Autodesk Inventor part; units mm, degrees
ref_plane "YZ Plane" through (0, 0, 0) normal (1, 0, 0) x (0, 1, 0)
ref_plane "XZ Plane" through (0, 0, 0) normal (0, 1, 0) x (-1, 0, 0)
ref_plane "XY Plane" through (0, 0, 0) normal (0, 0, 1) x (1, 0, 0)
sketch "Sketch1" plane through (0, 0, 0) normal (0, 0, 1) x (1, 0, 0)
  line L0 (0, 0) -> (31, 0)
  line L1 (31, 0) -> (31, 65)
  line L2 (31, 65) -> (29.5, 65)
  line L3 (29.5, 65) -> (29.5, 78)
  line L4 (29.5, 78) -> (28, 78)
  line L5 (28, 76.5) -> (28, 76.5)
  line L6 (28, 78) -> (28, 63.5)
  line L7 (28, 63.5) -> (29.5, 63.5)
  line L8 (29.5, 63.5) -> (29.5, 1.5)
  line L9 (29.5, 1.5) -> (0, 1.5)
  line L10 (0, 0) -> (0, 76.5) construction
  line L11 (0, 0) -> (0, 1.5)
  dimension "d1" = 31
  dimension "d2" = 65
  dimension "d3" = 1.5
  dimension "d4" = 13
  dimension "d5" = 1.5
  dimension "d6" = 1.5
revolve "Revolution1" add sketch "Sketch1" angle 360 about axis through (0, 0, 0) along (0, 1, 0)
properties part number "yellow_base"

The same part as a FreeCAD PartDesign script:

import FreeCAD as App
import Part
import Sketcher
from FreeCAD import Vector

doc = App.newDocument("Part")
body = doc.addObject("PartDesign::Body", "Body")

# Sketch on XY plane
sketch1 = body.newObject("Sketcher::SketchObject", "Sketch")
sketch1.AttachmentSupport = (doc.getObject("XY_Plane"), [""])
sketch1.MapMode = "FlatFace"
sketch1.addGeometry(Part.LineSegment(Vector(0, 1.5, 0), Vector(0, 0, 0)), False)
sketch1.addGeometry(Part.LineSegment(Vector(0, 0, 0), Vector(31, 0, 0)), False)
sketch1.addGeometry(Part.LineSegment(Vector(31, 0, 0), Vector(31, 65, 0)), False)
sketch1.addGeometry(Part.LineSegment(Vector(31, 65, 0), Vector(29.5, 65, 0)), False)
sketch1.addGeometry(Part.LineSegment(Vector(29.5, 65, 0), Vector(29.5, 78, 0)), False)
sketch1.addGeometry(Part.LineSegment(Vector(29.5, 78, 0), Vector(28, 78, 0)), False)
sketch1.addGeometry(Part.LineSegment(Vector(28, 78, 0), Vector(28, 63.5, 0)), False)
sketch1.addGeometry(Part.LineSegment(Vector(28, 63.5, 0), Vector(29.5, 63.5, 0)), False)
sketch1.addGeometry(Part.LineSegment(Vector(29.5, 63.5, 0), Vector(29.5, 1.5, 0)), False)
sketch1.addGeometry(Part.LineSegment(Vector(29.5, 1.5, 0), Vector(0, 1.5, 0)), False)
sketch1.addConstraint(Sketcher.Constraint("Coincident", 0, 2, 1, 1))
sketch1.addConstraint(Sketcher.Constraint("Coincident", 1, 2, 2, 1))
sketch1.addConstraint(Sketcher.Constraint("Coincident", 2, 2, 3, 1))
sketch1.addConstraint(Sketcher.Constraint("Coincident", 3, 2, 4, 1))
sketch1.addConstraint(Sketcher.Constraint("Coincident", 4, 2, 5, 1))
sketch1.addConstraint(Sketcher.Constraint("Coincident", 5, 2, 6, 1))
sketch1.addConstraint(Sketcher.Constraint("Coincident", 6, 2, 7, 1))
sketch1.addConstraint(Sketcher.Constraint("Coincident", 7, 2, 8, 1))
sketch1.addConstraint(Sketcher.Constraint("Coincident", 8, 2, 9, 1))
sketch1.addConstraint(Sketcher.Constraint("Coincident", 9, 2, 0, 1))
sketch1.addConstraint(Sketcher.Constraint("Vertical", 0))
sketch1.addConstraint(Sketcher.Constraint("Horizontal", 1))
sketch1.addConstraint(Sketcher.Constraint("Vertical", 2))
sketch1.addConstraint(Sketcher.Constraint("Horizontal", 3))
sketch1.addConstraint(Sketcher.Constraint("Vertical", 4))
sketch1.addConstraint(Sketcher.Constraint("Horizontal", 5))
sketch1.addConstraint(Sketcher.Constraint("Vertical", 6))
sketch1.addConstraint(Sketcher.Constraint("Horizontal", 7))
sketch1.addConstraint(Sketcher.Constraint("Vertical", 8))
sketch1.addConstraint(Sketcher.Constraint("Horizontal", 9))
sketch1.addConstraint(Sketcher.Constraint("Coincident", 0, 2, -1, 1))
sketch1.addConstraint(Sketcher.Constraint("Vertical", 4, 2, 7, 2))
sketch1.addConstraint(Sketcher.Constraint("Equal", 3, 5))
sketch1.addConstraint(Sketcher.Constraint("Equal", 7, 0))
sketch1.addConstraint(Sketcher.Constraint("DistanceX", 1, 1, 1, 2, 31.0))
sketch1.addConstraint(Sketcher.Constraint("DistanceY", 2, 1, 2, 2, 65.0))
sketch1.addConstraint(Sketcher.Constraint("DistanceY", 4, 1, 4, 2, 13.0))
sketch1.addConstraint(Sketcher.Constraint("DistanceX", 3, 2, 3, 1, 1.5))
sketch1.addConstraint(Sketcher.Constraint("DistanceY", 6, 2, 3, 2, 1.5))
revolution = body.newObject("PartDesign::Revolution", "Revolution")
revolution.Profile = sketch1
revolution.ReferenceAxis = (sketch1, ["V_Axis"])
revolution.Angle = 360

doc.recompute()
